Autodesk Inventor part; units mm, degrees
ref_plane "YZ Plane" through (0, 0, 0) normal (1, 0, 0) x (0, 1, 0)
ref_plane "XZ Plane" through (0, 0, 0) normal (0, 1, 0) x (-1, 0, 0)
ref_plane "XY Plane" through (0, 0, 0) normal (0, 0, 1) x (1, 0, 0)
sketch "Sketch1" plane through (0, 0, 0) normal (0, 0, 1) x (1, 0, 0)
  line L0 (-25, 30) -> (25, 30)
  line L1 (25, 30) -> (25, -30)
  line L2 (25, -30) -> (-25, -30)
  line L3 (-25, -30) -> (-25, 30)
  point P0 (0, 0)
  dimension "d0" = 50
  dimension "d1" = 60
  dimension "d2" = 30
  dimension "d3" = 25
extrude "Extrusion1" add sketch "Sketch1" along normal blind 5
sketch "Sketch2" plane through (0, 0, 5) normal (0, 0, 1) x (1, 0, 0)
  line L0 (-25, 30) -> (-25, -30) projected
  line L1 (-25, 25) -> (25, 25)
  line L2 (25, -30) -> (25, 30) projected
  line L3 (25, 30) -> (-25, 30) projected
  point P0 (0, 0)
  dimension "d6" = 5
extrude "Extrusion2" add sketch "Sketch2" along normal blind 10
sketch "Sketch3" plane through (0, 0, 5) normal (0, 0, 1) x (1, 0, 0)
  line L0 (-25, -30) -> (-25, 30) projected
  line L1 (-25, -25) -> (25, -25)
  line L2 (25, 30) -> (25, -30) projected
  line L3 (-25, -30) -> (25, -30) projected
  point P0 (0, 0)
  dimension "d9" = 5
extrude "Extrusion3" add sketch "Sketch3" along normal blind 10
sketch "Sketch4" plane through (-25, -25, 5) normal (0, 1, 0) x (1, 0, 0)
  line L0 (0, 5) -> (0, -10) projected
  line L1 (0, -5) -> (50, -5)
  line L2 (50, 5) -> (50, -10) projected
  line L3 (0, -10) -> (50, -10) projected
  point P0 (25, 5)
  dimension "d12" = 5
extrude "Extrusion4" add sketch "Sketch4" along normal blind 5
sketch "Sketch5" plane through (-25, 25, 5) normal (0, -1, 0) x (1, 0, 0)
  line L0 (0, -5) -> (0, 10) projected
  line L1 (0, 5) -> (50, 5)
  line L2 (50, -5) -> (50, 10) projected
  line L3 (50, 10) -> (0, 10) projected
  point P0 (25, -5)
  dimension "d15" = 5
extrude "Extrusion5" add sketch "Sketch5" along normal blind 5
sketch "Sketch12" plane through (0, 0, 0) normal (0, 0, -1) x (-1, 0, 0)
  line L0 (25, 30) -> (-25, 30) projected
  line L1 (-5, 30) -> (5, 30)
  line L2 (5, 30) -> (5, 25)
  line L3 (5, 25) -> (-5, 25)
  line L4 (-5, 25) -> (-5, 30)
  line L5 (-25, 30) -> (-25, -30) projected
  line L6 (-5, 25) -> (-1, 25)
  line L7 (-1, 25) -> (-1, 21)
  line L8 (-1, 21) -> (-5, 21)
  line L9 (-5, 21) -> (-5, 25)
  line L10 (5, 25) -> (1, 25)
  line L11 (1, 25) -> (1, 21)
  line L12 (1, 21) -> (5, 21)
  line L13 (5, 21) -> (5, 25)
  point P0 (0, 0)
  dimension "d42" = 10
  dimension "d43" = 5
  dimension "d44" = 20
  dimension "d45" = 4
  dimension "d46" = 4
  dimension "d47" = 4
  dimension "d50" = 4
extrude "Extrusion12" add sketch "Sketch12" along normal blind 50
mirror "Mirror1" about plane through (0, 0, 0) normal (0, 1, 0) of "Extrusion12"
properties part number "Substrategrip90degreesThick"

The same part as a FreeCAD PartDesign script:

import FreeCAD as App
import Part
import Sketcher

V = App.Vector

doc = App.newDocument("Part")
body = doc.addObject("PartDesign::Body", "Body")

# Sketch on XY plane
sketch1 = doc.addObject("Sketcher::SketchObject", "Sketch")
body.addObject(sketch1)
sketch1.AttachmentSupport = (doc.XY_Plane, [""])
sketch1.MapMode = "FlatFace"
sketch1.addGeometry(Part.LineSegment(V(25, 30, 0), V(-25, 30, 0)), False)
sketch1.addGeometry(Part.LineSegment(V(-25, 30, 0), V(-25, -30, 0)), False)
sketch1.addGeometry(Part.LineSegment(V(-25, -30, 0), V(25, -30, 0)), False)
sketch1.addGeometry(Part.LineSegment(V(25, -30, 0), V(25, 30, 0)), False)
sketch1.addConstraint(Sketcher.Constraint("Coincident", 0, 2, 1, 1))
sketch1.addConstraint(Sketcher.Constraint("Coincident", 1, 2, 2, 1))
sketch1.addConstraint(Sketcher.Constraint("Coincident", 2, 2, 3, 1))
sketch1.addConstraint(Sketcher.Constraint("Coincident", 3, 2, 0, 1))
sketch1.addConstraint(Sketcher.Constraint("Horizontal", 0))
sketch1.addConstraint(Sketcher.Constraint("Vertical", 1))
sketch1.addConstraint(Sketcher.Constraint("Horizontal", 2))
sketch1.addConstraint(Sketcher.Constraint("Vertical", 3))
sketch1.addConstraint(Sketcher.Constraint("Symmetric", 0, 2, 2, 2, -1, 1))
sketch1.addConstraint(Sketcher.Constraint("DistanceX", 0, 2, 0, 1, 50.0))
sketch1.addConstraint(Sketcher.Constraint("DistanceY", 1, 2, 1, 1, 60.0))
pad1 = doc.addObject("PartDesign::Pad", "Pad")
body.addObject(pad1)
pad1.Profile = sketch1
pad1.Length = 5

# Sketch on XY plane
sketch2 = doc.addObject("Sketcher::SketchObject", "Sketch001")
body.addObject(sketch2)
sketch2.AttachmentSupport = (doc.XY_Plane, [""])
sketch2.MapMode = "FlatFace"
sketch2.AttachmentOffset = App.Placement(V(0, 0, 5), App.Rotation())
sketch2.addGeometry(Part.LineSegment(V(25, 30, 0), V(-25, 30, 0)), False)
sketch2.addGeometry(Part.LineSegment(V(-25, 30, 0), V(-25, 25, 0)), False)
sketch2.addGeometry(Part.LineSegment(V(-25, 25, 0), V(25, 25, 0)), False)
sketch2.addGeometry(Part.LineSegment(V(25, 25, 0), V(25, 30, 0)), False)
sketch2.addConstraint(Sketcher.Constraint("Coincident", 0, 2, 1, 1))
sketch2.addConstraint(Sketcher.Constraint("Coincident", 1, 2, 2, 1))
sketch2.addConstraint(Sketcher.Constraint("Coincident", 2, 2, 3, 1))
sketch2.addConstraint(Sketcher.Constraint("Coincident", 3, 2, 0, 1))
sketch2.addConstraint(Sketcher.Constraint("Horizontal", 0))
sketch2.addConstraint(Sketcher.Constraint("Vertical", 1))
sketch2.addConstraint(Sketcher.Constraint("Horizontal", 2))
sketch2.addConstraint(Sketcher.Constraint("Vertical", 3))
sketch2.addConstraint(Sketcher.Constraint("DistanceY", 1, 2, 1, 1, 5.0))
sketch2.addConstraint(Sketcher.Constraint("DistanceX", 0, 2, 0, 1, 50.0))
sketch2.addConstraint(Sketcher.Constraint("DistanceX", 0, 2, -1, 1, 25.0))
sketch2.addConstraint(Sketcher.Constraint("DistanceY", -1, 1, 0, 2, 30.0))
pad2 = doc.addObject("PartDesign::Pad", "Pad001")
body.addObject(pad2)
pad2.Profile = sketch2
pad2.Length = 10

# Sketch on XY plane
sketch3 = doc.addObject("Sketcher::SketchObject", "Sketch002")
body.addObject(sketch3)
sketch3.AttachmentSupport = (doc.XY_Plane, [""])
sketch3.MapMode = "FlatFace"
sketch3.AttachmentOffset = App.Placement(V(0, 0, 5), App.Rotation())
sketch3.addGeometry(Part.LineSegment(V(-25, -25, 0), V(-25, -30, 0)), False)
sketch3.addGeometry(Part.LineSegment(V(-25, -30, 0), V(25, -30, 0)), False)
sketch3.addGeometry(Part.LineSegment(V(25, -30, 0), V(25, -25, 0)), False)
sketch3.addGeometry(Part.LineSegment(V(25, -25, 0), V(-25, -25, 0)), False)
sketch3.addConstraint(Sketcher.Constraint("Coincident", 0, 2, 1, 1))
sketch3.addConstraint(Sketcher.Constraint("Coincident", 1, 2, 2, 1))
sketch3.addConstraint(Sketcher.Constraint("Coincident", 2, 2, 3, 1))
sketch3.addConstraint(Sketcher.Constraint("Coincident", 3, 2, 0, 1))
sketch3.addConstraint(Sketcher.Constraint("Vertical", 0))
sketch3.addConstraint(Sketcher.Constraint("Horizontal", 1))
sketch3.addConstraint(Sketcher.Constraint("Vertical", 2))
sketch3.addConstraint(Sketcher.Constraint("Horizontal", 3))
sketch3.addConstraint(Sketcher.Constraint("DistanceY", 0, 2, 0, 1, 5.0))
sketch3.addConstraint(Sketcher.Constraint("DistanceX", 1, 1, 1, 2, 50.0))
sketch3.addConstraint(Sketcher.Constraint("DistanceX", 0, 2, -1, 1, 25.0))
sketch3.addConstraint(Sketcher.Constraint("DistanceY", 0, 2, -1, 1, 30.0))
pad3 = doc.addObject("PartDesign::Pad", "Pad002")
body.addObject(pad3)
pad3.Profile = sketch3
pad3.Length = 10

# Sketch on XZ plane
sketch4 = doc.addObject("Sketcher::SketchObject", "Sketch003")
body.addObject(sketch4)
sketch4.AttachmentSupport = (doc.XZ_Plane, [""])
sketch4.MapMode = "FlatFace"
sketch4.AttachmentOffset = App.Placement(V(0, 0, 25), App.Rotation())
sketch4.addGeometry(Part.LineSegment(V(25, 10, 0), V(-25, 10, 0)), False)
sketch4.addGeometry(Part.LineSegment(V(-25, 10, 0), V(-25, 15, 0)), False)
sketch4.addGeometry(Part.LineSegment(V(-25, 15, 0), V(25, 15, 0)), False)
sketch4.addGeometry(Part.LineSegment(V(25, 15, 0), V(25, 10, 0)), False)
sketch4.addConstraint(Sketcher.Constraint("Coincident", 0, 2, 1, 1))
sketch4.addConstraint(Sketcher.Constraint("Coincident", 1, 2, 2, 1))
sketch4.addConstraint(Sketcher.Constraint("Coincident", 2, 2, 3, 1))
sketch4.addConstraint(Sketcher.Constraint("Coincident", 3, 2, 0, 1))
sketch4.addConstraint(Sketcher.Constraint("Horizontal", 0))
sketch4.addConstraint(Sketcher.Constraint("Vertical", 1))
sketch4.addConstraint(Sketcher.Constraint("Horizontal", 2))
sketch4.addConstraint(Sketcher.Constraint("Vertical", 3))
sketch4.addConstraint(Sketcher.Constraint("DistanceY", 1, 1, 1, 2, 5.0))
sketch4.addConstraint(Sketcher.Constraint("DistanceX", 0, 2, 0, 1, 50.0))
sketch4.addConstraint(Sketcher.Constraint("DistanceX", 0, 2, -1, 1, 25.0))
sketch4.addConstraint(Sketcher.Constraint("DistanceY", -1, 1, 0, 2, 10.0))
pad4 = doc.addObject("PartDesign::Pad", "Pad003")
body.addObject(pad4)
pad4.Profile = sketch4
pad4.Length = 5
pad4.Reversed = True

# Sketch on XZ plane
sketch5 = doc.addObject("Sketcher::SketchObject", "Sketch004")
body.addObject(sketch5)
sketch5.AttachmentSupport = (doc.XZ_Plane, [""])
sketch5.MapMode = "FlatFace"
sketch5.AttachmentOffset = App.Placement(V(0, 0, -25), App.Rotation())
sketch5.addGeometry(Part.LineSegment(V(-25, 15, 0), V(-25, 10, 0)), False)
sketch5.addGeometry(Part.LineSegment(V(-25, 10, 0), V(25, 10, 0)), False)
sketch5.addGeometry(Part.LineSegment(V(25, 10, 0), V(25, 15, 0)), False)
sketch5.addGeometry(Part.LineSegment(V(25, 15, 0), V(-25, 15, 0)), False)
sketch5.addConstraint(Sketcher.Constraint("Coincident", 0, 2, 1, 1))
sketch5.addConstraint(Sketcher.Constraint("Coincident", 1, 2, 2, 1))
sketch5.addConstraint(Sketcher.Constraint("Coincident", 2, 2, 3, 1))
sketch5.addConstraint(Sketcher.Constraint("Coincident", 3, 2, 0, 1))
sketch5.addConstraint(Sketcher.Constraint("Vertical", 0))
sketch5.addConstraint(Sketcher.Constraint("Horizontal", 1))
sketch5.addConstraint(Sketcher.Constraint("Vertical", 2))
sketch5.addConstraint(Sketcher.Constraint("Horizontal", 3))
sketch5.addConstraint(Sketcher.Constraint("DistanceY", 0, 2, 0, 1, 5.0))
sketch5.addConstraint(Sketcher.Constraint("DistanceX", 1, 1, 1, 2, 50.0))
sketch5.addConstraint(Sketcher.Constraint("DistanceX", 0, 2, -1, 1, 25.0))
sketch5.addConstraint(Sketcher.Constraint("DistanceY", -1, 1, 0, 2, 10.0))
pad5 = doc.addObject("PartDesign::Pad", "Pad004")
body.addObject(pad5)
pad5.Profile = sketch5
pad5.Length = 5

# Sketch on XY plane
sketch6 = doc.addObject("Sketcher::SketchObject", "Sketch005")
body.addObject(sketch6)
sketch6.AttachmentSupport = (doc.XY_Plane, [""])
sketch6.MapMode = "FlatFace"
sketch6.addGeometry(Part.LineSegment(V(-5, 30, 0), V(5, 30, 0)), False)
sketch6.addGeometry(Part.LineSegment(V(5, 30, 0), V(5, 21, 0)), False)
sketch6.addGeometry(Part.LineSegment(V(5, 21, 0), V(1, 21, 0)), False)
sketch6.addGeometry(Part.LineSegment(V(1, 21, 0), V(1, 25, 0)), False)
sketch6.addGeometry(Part.LineSegment(V(1, 25, 0), V(-1, 25, 0)), False)
sketch6.addGeometry(Part.LineSegment(V(-1, 25, 0), V(-1, 21, 0)), False)
sketch6.addGeometry(Part.LineSegment(V(-1, 21, 0), V(-5, 21, 0)), False)
sketch6.addGeometry(Part.LineSegment(V(-5, 21, 0), V(-5, 30, 0)), False)
sketch6.addConstraint(Sketcher.Constraint("Coincident", 0, 2, 1, 1))
sketch6.addConstraint(Sketcher.Constraint("Coincident", 1, 2, 2, 1))
sketch6.addConstraint(Sketcher.Constraint("Coincident", 2, 2, 3, 1))
sketch6.addConstraint(Sketcher.Constraint("Coincident", 3, 2, 4, 1))
sketch6.addConstraint(Sketcher.Constraint("Coincident", 4, 2, 5, 1))
sketch6.addConstraint(Sketcher.Constraint("Coincident", 5, 2, 6, 1))
sketch6.addConstraint(Sketcher.Constraint("Coincident", 6, 2, 7, 1))
sketch6.addConstraint(Sketcher.Constraint("Coincident", 7, 2, 0, 1))
sketch6.addConstraint(Sketcher.Constraint("Horizontal", 0))
sketch6.addConstraint(Sketcher.Constraint("Vertical", 1))
sketch6.addConstraint(Sketcher.Constraint("Horizontal", 2))
sketch6.addConstraint(Sketcher.Constraint("Vertical", 3))
sketch6.addConstraint(Sketcher.Constraint("Horizontal", 4))
sketch6.addConstraint(Sketcher.Constraint("Vertical", 5))
sketch6.addConstraint(Sketcher.Constraint("Horizontal", 6))
sketch6.addConstraint(Sketcher.Constraint("Vertical", 7))
sketch6.addConstraint(Sketcher.Constraint("Symmetric", 2, 2, 5, 2, -2))
sketch6.addConstraint(Sketcher.Constraint("Equal", 2, 6))
sketch6.addConstraint(Sketcher.Constraint("Equal", 6, 3))
sketch6.addConstraint(Sketcher.Constraint("DistanceX", 0, 1, 0, 2, 10.0))
sketch6.addConstraint(Sketcher.Constraint("DistanceX", 2, 2, 2, 1, 4.0))
sketch6.addConstraint(Sketcher.Constraint("DistanceY", 3, 2, 0, 2, 5.0))
sketch6.addConstraint(Sketcher.Constraint("DistanceY", -1, 1, 0, 2, 30.0))
pad6 = doc.addObject("PartDesign::Pad", "Pad005")
body.addObject(pad6)
pad6.Profile = sketch6
pad6.Length = 50
pad6.Reversed = True
doc.recompute()

mirrored = doc.addObject("PartDesign::Mirrored", "Mirrored")
body.addObject(mirrored)
mirrored.Originals = [pad6]
mirrored.MirrorPlane = (doc.XZ_Plane, [""])
body.Tip = mirrored

doc.recompute()
